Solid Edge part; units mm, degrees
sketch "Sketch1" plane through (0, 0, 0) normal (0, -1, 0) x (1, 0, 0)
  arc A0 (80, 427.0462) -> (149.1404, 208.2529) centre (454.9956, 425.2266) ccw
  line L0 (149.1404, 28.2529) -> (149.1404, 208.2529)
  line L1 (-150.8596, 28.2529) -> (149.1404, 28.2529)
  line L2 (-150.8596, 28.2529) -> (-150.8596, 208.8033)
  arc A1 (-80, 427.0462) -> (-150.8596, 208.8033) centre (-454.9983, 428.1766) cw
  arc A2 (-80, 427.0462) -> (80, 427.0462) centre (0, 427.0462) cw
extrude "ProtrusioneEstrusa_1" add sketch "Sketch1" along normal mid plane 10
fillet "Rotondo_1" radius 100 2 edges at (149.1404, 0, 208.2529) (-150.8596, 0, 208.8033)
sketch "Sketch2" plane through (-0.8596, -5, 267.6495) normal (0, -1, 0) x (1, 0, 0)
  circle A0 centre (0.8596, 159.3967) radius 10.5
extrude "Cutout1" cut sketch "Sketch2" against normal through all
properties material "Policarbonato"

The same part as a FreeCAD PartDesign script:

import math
import FreeCAD as App
import Part
import Sketcher


def edges_at(feature, points):
    """Names of the edges that pass closest to the given points."""
    edges = feature.Shape.Edges
    near = lambda p: min(range(len(edges)), key=lambda i: edges[i].distToShape(Part.Vertex(*p))[0])
    return sorted({f"Edge{near(p) + 1}" for p in points})

doc = App.newDocument("Part")
body = doc.addObject("PartDesign::Body", "Body")

# Sketch on XZ plane
sketch1 = body.newObject("Sketcher::SketchObject", "Sketch")
sketch1.AttachmentSupport = (doc.getObject("XZ_Plane"), [""])
sketch1.MapMode = "FlatFace"
sketch1.addGeometry(Part.ArcOfCircle(Part.Circle(App.Vector(454.9956, 425.2266, 0), App.Vector(0, 0, 1), 375.000015), math.radians(179.721985), math.radians(215.351892)), False)
sketch1.addGeometry(Part.ArcOfCircle(Part.Circle(App.Vector(0, 427.0462, 0), App.Vector(0, 0, 1), 80), math.radians(0), math.radians(180)), False)
sketch1.addGeometry(Part.ArcOfCircle(Part.Circle(App.Vector(-454.9983, 428.1766, 0), App.Vector(0, 0, 1), 375.000004), math.radians(-35.802671), math.radians(-0.172713)), False)
sketch1.addGeometry(Part.LineSegment(App.Vector(-150.8596, 208.8033, 0), App.Vector(-150.8596, 28.2529, 0)), False)
sketch1.addGeometry(Part.LineSegment(App.Vector(-150.8596, 28.2529, 0), App.Vector(149.1404, 28.2529, 0)), False)
sketch1.addGeometry(Part.LineSegment(App.Vector(149.1404, 28.2529, 0), App.Vector(149.1404, 208.2529, 0)), False)
sketch1.addConstraint(Sketcher.Constraint("Coincident", 0, 1, 1, 1))
sketch1.addConstraint(Sketcher.Constraint("Coincident", 1, 2, 2, 2))
sketch1.addConstraint(Sketcher.Constraint("Coincident", 2, 1, 3, 1))
sketch1.addConstraint(Sketcher.Constraint("Coincident", 3, 2, 4, 1))
sketch1.addConstraint(Sketcher.Constraint("Coincident", 4, 2, 5, 1))
sketch1.addConstraint(Sketcher.Constraint("Coincident", 5, 2, 0, 2))
sketch1.addConstraint(Sketcher.Constraint("Vertical", 3))
sketch1.addConstraint(Sketcher.Constraint("Horizontal", 4))
sketch1.addConstraint(Sketcher.Constraint("Vertical", 5))
sketch1.addConstraint(Sketcher.Constraint("Equal", 0, 2))
sketch1.addConstraint(Sketcher.Constraint("Symmetric", 0, 1, 1, 2, -2))
sketch1.addConstraint(Sketcher.Constraint("Horizontal", 1, 3, 0, 1))
sketch1.addConstraint(Sketcher.Constraint("Radius", 0, 375.0))
sketch1.addConstraint(Sketcher.Constraint("Radius", 1, 80.0))
sketch1.addConstraint(Sketcher.Constraint("DistanceX", 4, 1, 4, 2, 300.0))
sketch1.addConstraint(Sketcher.Constraint("DistanceY", 5, 1, 5, 2, 180.0))
sketch1.addConstraint(Sketcher.Constraint("DistanceY", 0, 3, 2, 3, 2.95))
sketch1.addConstraint(Sketcher.Constraint("DistanceY", 3, 2, 3, 1, 180.5504))
sketch1.addConstraint(Sketcher.Constraint("DistanceY", -1, 1, 3, 2, 28.253))
sketch1.addConstraint(Sketcher.Constraint("DistanceY", 2, 1, 1, 2, 218.243))
pad1 = body.newObject("PartDesign::Pad", "Pad")
pad1.Profile = sketch1
pad1.Length = 10
pad1.Midplane = True
doc.recompute()

fillet = body.newObject("PartDesign::Fillet", "Fillet")
fillet.Base = (pad1, edges_at(pad1, [(149.14, 0, 208.253), (-150.86, 0, 208.803)]))
fillet.Radius = 100

# Sketch on XZ plane
sketch2 = body.newObject("Sketcher::SketchObject", "Sketch001")
sketch2.AttachmentSupport = (doc.getObject("XZ_Plane"), [""])
sketch2.MapMode = "FlatFace"
sketch2.AttachmentOffset = App.Placement(App.Vector(0, 0, 5), App.Rotation())
sketch2.addGeometry(Part.Circle(App.Vector(0, 427.0462, 0), App.Vector(0, 0, 1), 10.5), False)
sketch2.addConstraint(Sketcher.Constraint("PointOnObject", 0, 3, -2))
sketch2.addConstraint(Sketcher.Constraint("Diameter", 0, 21.0))
sketch2.addConstraint(Sketcher.Constraint("DistanceY", -1, 1, 0, 3, 427.0462))
pocket1 = body.newObject("PartDesign::Pocket", "Pocket")
pocket1.Profile = sketch2
pocket1.Type = "ThroughAll"

doc.recompute()
